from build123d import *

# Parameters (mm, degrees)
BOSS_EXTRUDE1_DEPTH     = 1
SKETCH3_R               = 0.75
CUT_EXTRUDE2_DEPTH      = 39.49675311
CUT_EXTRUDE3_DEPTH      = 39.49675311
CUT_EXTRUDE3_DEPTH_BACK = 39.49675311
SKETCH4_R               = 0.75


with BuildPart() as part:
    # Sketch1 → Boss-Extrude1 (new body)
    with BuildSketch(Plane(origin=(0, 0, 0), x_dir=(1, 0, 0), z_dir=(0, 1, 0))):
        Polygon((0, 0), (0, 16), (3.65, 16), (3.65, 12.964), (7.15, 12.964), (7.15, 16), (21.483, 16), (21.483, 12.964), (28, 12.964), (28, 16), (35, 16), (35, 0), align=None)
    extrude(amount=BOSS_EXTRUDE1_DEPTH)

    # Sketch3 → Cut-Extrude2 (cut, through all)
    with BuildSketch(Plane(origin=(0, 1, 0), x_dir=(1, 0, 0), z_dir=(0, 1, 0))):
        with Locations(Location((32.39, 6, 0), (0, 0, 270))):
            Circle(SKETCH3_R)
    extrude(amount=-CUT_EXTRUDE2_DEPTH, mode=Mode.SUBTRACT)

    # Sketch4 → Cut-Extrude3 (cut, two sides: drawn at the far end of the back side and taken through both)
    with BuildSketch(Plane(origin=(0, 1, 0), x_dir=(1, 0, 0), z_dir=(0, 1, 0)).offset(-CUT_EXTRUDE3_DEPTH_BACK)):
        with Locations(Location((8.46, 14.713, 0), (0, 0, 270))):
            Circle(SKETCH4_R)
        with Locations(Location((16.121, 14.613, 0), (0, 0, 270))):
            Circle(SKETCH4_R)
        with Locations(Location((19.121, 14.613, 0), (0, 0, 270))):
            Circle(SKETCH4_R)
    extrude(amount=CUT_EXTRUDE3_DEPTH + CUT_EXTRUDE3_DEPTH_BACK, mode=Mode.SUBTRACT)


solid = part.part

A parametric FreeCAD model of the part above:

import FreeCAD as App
import Part
import Sketcher
from FreeCAD import Vector
Q = App.Units.Quantity

doc = App.newDocument("Part")
body = doc.addObject("PartDesign::Body", "Body")

# Sketch on XZ plane
sketch1 = doc.addObject("Sketcher::SketchObject", "Sketch")
body.addObject(sketch1)
sketch1.AttachmentSupport = (doc.XZ_Plane, [""])
sketch1.MapMode = "FlatFace"
sketch1.addGeometry(Part.LineSegment(Vector(0, -16, 0), Vector(0, 0, 0)), False)
sketch1.addGeometry(Part.LineSegment(Vector(0, 0, 0), Vector(35, 0, 0)), False)
sketch1.addGeometry(Part.LineSegment(Vector(35, 0, 0), Vector(35, -16, 0)), False)
sketch1.addGeometry(Part.LineSegment(Vector(35, -16, 0), Vector(28, -16, 0)), False)
sketch1.addGeometry(Part.LineSegment(Vector(28, -16, 0), Vector(28, -12.964, 0)), False)
sketch1.addGeometry(Part.LineSegment(Vector(28, -12.964, 0), Vector(21.483, -12.964, 0)), False)
sketch1.addGeometry(Part.LineSegment(Vector(21.483, -12.964, 0), Vector(21.483, -16, 0)), False)
sketch1.addGeometry(Part.LineSegment(Vector(21.483, -16, 0), Vector(7.15, -16, 0)), False)
sketch1.addGeometry(Part.LineSegment(Vector(7.15, -16, 0), Vector(7.15, -12.964, 0)), False)
sketch1.addGeometry(Part.LineSegment(Vector(7.15, -12.964, 0), Vector(3.65, -12.964, 0)), False)
sketch1.addGeometry(Part.LineSegment(Vector(3.65, -12.964, 0), Vector(3.65, -16, 0)), False)
sketch1.addGeometry(Part.LineSegment(Vector(3.65, -16, 0), Vector(0, -16, 0)), False)
sketch1.addConstraint(Sketcher.Constraint("Coincident", 0, 2, 1, 1))
sketch1.addConstraint(Sketcher.Constraint("Coincident", 1, 2, 2, 1))
sketch1.addConstraint(Sketcher.Constraint("Coincident", 2, 2, 3, 1))
sketch1.addConstraint(Sketcher.Constraint("Coincident", 3, 2, 4, 1))
sketch1.addConstraint(Sketcher.Constraint("Coincident", 4, 2, 5, 1))
sketch1.addConstraint(Sketcher.Constraint("Coincident", 5, 2, 6, 1))
sketch1.addConstraint(Sketcher.Constraint("Coincident", 6, 2, 7, 1))
sketch1.addConstraint(Sketcher.Constraint("Coincident", 7, 2, 8, 1))
sketch1.addConstraint(Sketcher.Constraint("Coincident", 8, 2, 9, 1))
sketch1.addConstraint(Sketcher.Constraint("Coincident", 9, 2, 10, 1))
sketch1.addConstraint(Sketcher.Constraint("Coincident", 10, 2, 11, 1))
sketch1.addConstraint(Sketcher.Constraint("Coincident", 11, 2, 0, 1))
sketch1.addConstraint(Sketcher.Constraint("Vertical", 0))
sketch1.addConstraint(Sketcher.Constraint("Horizontal", 1))
sketch1.addConstraint(Sketcher.Constraint("Vertical", 2))
sketch1.addConstraint(Sketcher.Constraint("Horizontal", 3))
sketch1.addConstraint(Sketcher.Constraint("Vertical", 4))
sketch1.addConstraint(Sketcher.Constraint("Horizontal", 5))
sketch1.addConstraint(Sketcher.Constraint("Vertical", 6))
sketch1.addConstraint(Sketcher.Constraint("Horizontal", 7))
sketch1.addConstraint(Sketcher.Constraint("Vertical", 8))
sketch1.addConstraint(Sketcher.Constraint("Horizontal", 9))
sketch1.addConstraint(Sketcher.Constraint("Vertical", 10))
sketch1.addConstraint(Sketcher.Constraint("Horizontal", 11))
sketch1.addConstraint(Sketcher.Constraint("Coincident", 0, 2, -1, 1))
sketch1.addConstraint(Sketcher.Constraint("Horizontal", 3, 2, 6, 2))
sketch1.addConstraint(Sketcher.Constraint("Horizontal", 5, 2, 8, 2))
sketch1.addConstraint(Sketcher.Constraint("Horizontal", 7, 2, 10, 2))
sketch1.addConstraint(Sketcher.Constraint("DistanceX", 1, 1, 1, 2, Q("35 mm")))
sketch1.addConstraint(Sketcher.Constraint("DistanceX", 3, 2, 3, 1, Q("7 mm")))
sketch1.addConstraint(Sketcher.Constraint("DistanceY", 0, 1, 0, 2, Q("16 mm")))
sketch1.addConstraint(Sketcher.Constraint("DistanceX", 9, 2, 9, 1, Q("3.5 mm")))
sketch1.addConstraint(Sketcher.Constraint("DistanceX", 11, 2, 11, 1, Q("3.65 mm")))
sketch1.addConstraint(Sketcher.Constraint("DistanceX", 5, 2, 5, 1, Q("6.517 mm")))
sketch1.addConstraint(Sketcher.Constraint("DistanceY", 4, 1, 4, 2, Q("3.036 mm")))
pad1 = doc.addObject("PartDesign::Pad", "Pad")
body.addObject(pad1)
pad1.Profile = sketch1
pad1.Length = 1
pad1.Reversed = True

# Sketch on XZ plane
sketch2 = doc.addObject("Sketcher::SketchObject", "Sketch001")
body.addObject(sketch2)
sketch2.AttachmentSupport = (doc.XZ_Plane, [""])
sketch2.MapMode = "FlatFace"
sketch2.AttachmentOffset = App.Placement(Vector(0, 0, -1), App.Rotation())
sketch2.addGeometry(Part.Circle(Vector(32.39, -6, 0), Vector(0, 0, 1), 0.75), False)
sketch2.addConstraint(Sketcher.Constraint("Diameter", 0, Q("1.5 mm")))
sketch2.addConstraint(Sketcher.Constraint("DistanceY", 0, 3, -1, 1, Q("6 mm")))
sketch2.addConstraint(Sketcher.Constraint("DistanceX", -1, 1, 0, 3, Q("32.39 mm")))
pocket1 = doc.addObject("PartDesign::Pocket", "Pocket")
body.addObject(pocket1)
pocket1.Profile = sketch2
pocket1.Type = "ThroughAll"
pocket1.Reversed = True

# Sketch on XZ plane
sketch3 = doc.addObject("Sketcher::SketchObject", "Sketch002")
body.addObject(sketch3)
sketch3.AttachmentSupport = (doc.XZ_Plane, [""])
sketch3.MapMode = "FlatFace"
sketch3.AttachmentOffset = App.Placement(Vector(0, 0, -1), App.Rotation())
sketch3.addGeometry(Part.Circle(Vector(8.46, -14.713, 0), Vector(0, 0, 1), 0.75), False)
sketch3.addGeometry(Part.Circle(Vector(16.121, -14.613, 0), Vector(0, 0, 1), 0.75), False)
sketch3.addGeometry(Part.Circle(Vector(19.121, -14.613, 0), Vector(0, 0, 1), 0.75), False)
sketch3.addConstraint(Sketcher.Constraint("Equal", 0, 1))
sketch3.addConstraint(Sketcher.Constraint("Equal", 1, 2))
sketch3.addConstraint(Sketcher.Constraint("Horizontal", 1, 3, 2, 3))
sketch3.addConstraint(Sketcher.Constraint("Diameter", 0, Q("1.5 mm")))
sketch3.addConstraint(Sketcher.Constraint("DistanceX", 1, 3, 2, 3, Q("3 mm")))
sketch3.addConstraint(Sketcher.Constraint("DistanceY", 0, 3, 1, 3, Q("0.1 mm")))
sketch3.addConstraint(Sketcher.Constraint("DistanceX", -1, 1, 0, 3, Q("8.46 mm")))
sketch3.addConstraint(Sketcher.Constraint("DistanceY", 0, 3, -1, 1, Q("14.713 mm")))
sketch3.addConstraint(Sketcher.Constraint("DistanceX", -1, 1, 1, 3, Q("16.121 mm")))
pocket2 = doc.addObject("PartDesign::Pocket", "Pocket001")
body.addObject(pocket2)
pocket2.Profile = sketch3
pocket2.Type = "ThroughAll"
pocket2.Midplane = True

doc.recompute()
